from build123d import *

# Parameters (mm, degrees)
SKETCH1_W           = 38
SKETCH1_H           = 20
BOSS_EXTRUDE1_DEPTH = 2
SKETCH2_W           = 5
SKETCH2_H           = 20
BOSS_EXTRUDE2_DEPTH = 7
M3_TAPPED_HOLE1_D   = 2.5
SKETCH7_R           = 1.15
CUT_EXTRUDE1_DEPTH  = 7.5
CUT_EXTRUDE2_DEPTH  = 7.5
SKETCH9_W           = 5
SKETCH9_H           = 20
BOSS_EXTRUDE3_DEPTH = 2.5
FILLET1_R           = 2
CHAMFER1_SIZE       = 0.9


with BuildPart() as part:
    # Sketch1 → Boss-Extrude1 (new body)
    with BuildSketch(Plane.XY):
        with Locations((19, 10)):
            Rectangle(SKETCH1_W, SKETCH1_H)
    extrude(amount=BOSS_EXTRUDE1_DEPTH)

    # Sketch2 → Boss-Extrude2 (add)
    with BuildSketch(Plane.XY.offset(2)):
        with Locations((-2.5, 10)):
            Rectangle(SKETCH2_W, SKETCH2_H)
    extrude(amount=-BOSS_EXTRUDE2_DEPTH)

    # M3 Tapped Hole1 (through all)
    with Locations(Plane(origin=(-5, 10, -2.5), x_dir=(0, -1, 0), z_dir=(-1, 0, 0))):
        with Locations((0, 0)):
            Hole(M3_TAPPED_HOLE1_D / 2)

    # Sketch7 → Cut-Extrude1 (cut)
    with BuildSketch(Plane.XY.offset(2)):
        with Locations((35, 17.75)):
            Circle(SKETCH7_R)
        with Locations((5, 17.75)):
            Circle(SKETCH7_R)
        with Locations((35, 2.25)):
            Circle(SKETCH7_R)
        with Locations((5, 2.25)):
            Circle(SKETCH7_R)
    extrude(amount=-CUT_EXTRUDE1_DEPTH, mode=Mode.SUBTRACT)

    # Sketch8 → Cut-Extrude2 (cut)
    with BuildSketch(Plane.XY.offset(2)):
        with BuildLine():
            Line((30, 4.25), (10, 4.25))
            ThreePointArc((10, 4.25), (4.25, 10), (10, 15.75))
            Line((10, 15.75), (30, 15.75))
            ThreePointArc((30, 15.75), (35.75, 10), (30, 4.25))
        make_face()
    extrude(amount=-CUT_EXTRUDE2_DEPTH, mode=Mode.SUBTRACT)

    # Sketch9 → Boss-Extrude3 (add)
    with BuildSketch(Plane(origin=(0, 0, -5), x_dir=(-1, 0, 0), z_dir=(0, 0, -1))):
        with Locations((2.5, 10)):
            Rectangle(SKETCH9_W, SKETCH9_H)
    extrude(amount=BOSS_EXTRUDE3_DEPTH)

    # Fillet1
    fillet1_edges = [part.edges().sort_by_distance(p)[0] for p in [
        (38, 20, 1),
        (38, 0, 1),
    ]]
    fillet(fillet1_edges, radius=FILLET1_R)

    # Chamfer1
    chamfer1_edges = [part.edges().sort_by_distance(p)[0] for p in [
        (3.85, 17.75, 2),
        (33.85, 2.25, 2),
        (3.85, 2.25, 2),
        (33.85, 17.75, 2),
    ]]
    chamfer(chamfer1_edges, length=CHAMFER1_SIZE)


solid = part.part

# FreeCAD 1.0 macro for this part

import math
import FreeCAD as App
import Part
import Sketcher
from FreeCAD import Vector


def edges_at(feature, points):
    """Names of the edges that pass closest to the given points."""
    edges = feature.Shape.Edges
    near = lambda p: min(range(len(edges)), key=lambda i: edges[i].distToShape(Part.Vertex(*p))[0])
    return sorted({f"Edge{near(p) + 1}" for p in points})


def add_polygon(sketch, points):
    """Adds a closed chain of lines whose ends are joined by coincident constraints."""
    first, n = sketch.GeometryCount, len(points)
    for a, b in zip(points, points[1:] + points[:1]):
        sketch.addGeometry(Part.LineSegment(App.Vector(*a, 0), App.Vector(*b, 0)), False)
    for i in range(n):
        sketch.addConstraint(Sketcher.Constraint("Coincident", first + i, 2, first + (i + 1) % n, 1))

doc = App.newDocument("Part")
body = doc.addObject("PartDesign::Body", "Body")

sketch1 = doc.addObject("Sketcher::SketchObject", "Sketch")
body.addObject(sketch1)
sketch1.AttachmentSupport = (doc.XY_Plane, [""])
sketch1.MapMode = "FlatFace"
add_polygon(sketch1, [(0, 20), (0, 0), (38, 0), (38, 20)])
sketch1.addConstraint(Sketcher.Constraint("Vertical", 0))
sketch1.addConstraint(Sketcher.Constraint("Horizontal", 1))
sketch1.addConstraint(Sketcher.Constraint("Vertical", 2))
sketch1.addConstraint(Sketcher.Constraint("Horizontal", 3))
sketch1.addConstraint(Sketcher.Constraint("Coincident", 0, 2, -1, 1))
sketch1.addConstraint(Sketcher.Constraint("DistanceX", 1, 1, 1, 2, 38.0))
sketch1.addConstraint(Sketcher.Constraint("DistanceY", 0, 2, 0, 1, 20.0))
pad1 = doc.addObject("PartDesign::Pad", "Pad")
body.addObject(pad1)
pad1.Profile = sketch1
pad1.Length = 2

sketch2 = doc.addObject("Sketcher::SketchObject", "Sketch001")
body.addObject(sketch2)
sketch2.AttachmentSupport = (doc.XY_Plane, [""])
sketch2.MapMode = "FlatFace"
sketch2.AttachmentOffset = App.Placement(Vector(0, 0, 2), App.Rotation())
add_polygon(sketch2, [(-5, 20), (-5, 0), (0, 0), (0, 20)])
sketch2.addConstraint(Sketcher.Constraint("Vertical", 0))
sketch2.addConstraint(Sketcher.Constraint("Horizontal", 1))
sketch2.addConstraint(Sketcher.Constraint("Vertical", 2))
sketch2.addConstraint(Sketcher.Constraint("Horizontal", 3))
sketch2.addConstraint(Sketcher.Constraint("Coincident", 1, 2, -1, 1))
sketch2.addConstraint(Sketcher.Constraint("DistanceX", 1, 1, 1, 2, 5.0))
sketch2.addConstraint(Sketcher.Constraint("DistanceY", 0, 2, 0, 1, 20.0))
pad2 = doc.addObject("PartDesign::Pad", "Pad001")
body.addObject(pad2)
pad2.Profile = sketch2
pad2.Length = 7
pad2.Reversed = True

sketch3 = doc.addObject("Sketcher::SketchObject", "Sketch002")
body.addObject(sketch3)
sketch3.AttachmentSupport = (doc.YZ_Plane, [""])
sketch3.MapMode = "FlatFace"
sketch3.AttachmentOffset = App.Placement(Vector(0, 0, -5), App.Rotation())
sketch3.addGeometry(Part.Circle(Vector(10, -2.5, 0), Vector(0, 0, 1), 1.2), False)
sketch3.addConstraint(Sketcher.Constraint("Diameter", 0, 2.5))
sketch3.addConstraint(Sketcher.Constraint("DistanceX", -1, 1, 0, 3, 10.0))
sketch3.addConstraint(Sketcher.Constraint("DistanceY", 0, 3, -1, 1, 2.5))
doc.recompute()
hole = doc.addObject("PartDesign::Hole", "Hole")
body.addObject(hole)
hole.Profile = sketch3
hole.ThreadType = "None"
hole.Diameter = 2.5
hole.DepthType = "ThroughAll"
hole.Reversed = True

sketch4 = doc.addObject("Sketcher::SketchObject", "Sketch003")
body.addObject(sketch4)
sketch4.AttachmentSupport = (doc.XY_Plane, [""])
sketch4.MapMode = "FlatFace"
sketch4.AttachmentOffset = App.Placement(Vector(0, 0, 2), App.Rotation())
sketch4.addGeometry(Part.Circle(Vector(35, 17.8, 0), Vector(0, 0, 1), 1.1), False)
sketch4.addGeometry(Part.Circle(Vector(5, 17.8, 0), Vector(0, 0, 1), 1.1), False)
sketch4.addGeometry(Part.Circle(Vector(35, 2.2, 0), Vector(0, 0, 1), 1.1), False)
sketch4.addGeometry(Part.Circle(Vector(5, 2.2, 0), Vector(0, 0, 1), 1.1), False)
sketch4.addConstraint(Sketcher.Constraint("Equal", 0, 1))
sketch4.addConstraint(Sketcher.Constraint("Equal", 1, 2))
sketch4.addConstraint(Sketcher.Constraint("Equal", 2, 3))
sketch4.addConstraint(Sketcher.Constraint("Horizontal", 0, 3, 1, 3))
sketch4.addConstraint(Sketcher.Constraint("Horizontal", 2, 3, 3, 3))
sketch4.addConstraint(Sketcher.Constraint("Vertical", 0, 3, 2, 3))
sketch4.addConstraint(Sketcher.Constraint("Vertical", 1, 3, 3, 3))
sketch4.addConstraint(Sketcher.Constraint("Diameter", 0, 2.3))
sketch4.addConstraint(Sketcher.Constraint("DistanceX", -1, 1, 0, 3, 35.0))
sketch4.addConstraint(Sketcher.Constraint("DistanceX", -1, 1, 1, 3, 5.0))
sketch4.addConstraint(Sketcher.Constraint("DistanceY", 2, 3, 0, 3, 15.5))
sketch4.addConstraint(Sketcher.Constraint("DistanceY", -1, 1, 0, 3, 17.75))
pocket1 = doc.addObject("PartDesign::Pocket", "Pocket")
body.addObject(pocket1)
pocket1.Profile = sketch4
pocket1.Length = 7.5

sketch5 = doc.addObject("Sketcher::SketchObject", "Sketch004")
body.addObject(sketch5)
sketch5.AttachmentSupport = (doc.XY_Plane, [""])
sketch5.MapMode = "FlatFace"
sketch5.AttachmentOffset = App.Placement(Vector(0, 0, 2), App.Rotation())
sketch5.addGeometry(Part.LineSegment(Vector(10, 4, 0), Vector(30, 4, 0)), False)
sketch5.addGeometry(Part.ArcOfCircle(Part.Circle(Vector(30, 10, 0), Vector(0, 0, 1), 6), math.radians(-90), math.radians(90)), False)
sketch5.addGeometry(Part.LineSegment(Vector(30, 16, 0), Vector(10, 16, 0)), False)
sketch5.addGeometry(Part.ArcOfCircle(Part.Circle(Vector(10, 10, 0), Vector(0, 0, 1), 6), math.radians(90), math.radians(270)), False)
sketch5.addConstraint(Sketcher.Constraint("Tangent", 0, 2, 1, 1))
sketch5.addConstraint(Sketcher.Constraint("Tangent", 1, 2, 2, 1))
sketch5.addConstraint(Sketcher.Constraint("Tangent", 2, 2, 3, 1))
sketch5.addConstraint(Sketcher.Constraint("Tangent", 3, 2, 0, 1))
sketch5.addConstraint(Sketcher.Constraint("Horizontal", 0))
sketch5.addConstraint(Sketcher.Constraint("Horizontal", 2))
sketch5.addConstraint(Sketcher.Constraint("DistanceX", 0, 1, 0, 2, 20.0))
sketch5.addConstraint(Sketcher.Constraint("Radius", 1, 5.75))
sketch5.addConstraint(Sketcher.Constraint("DistanceX", -1, 1, 1, 3, 30.0))
sketch5.addConstraint(Sketcher.Constraint("DistanceY", -1, 1, 1, 3, 10.0))
pocket2 = doc.addObject("PartDesign::Pocket", "Pocket001")
body.addObject(pocket2)
pocket2.Profile = sketch5
pocket2.Length = 7.5

sketch6 = doc.addObject("Sketcher::SketchObject", "Sketch005")
body.addObject(sketch6)
sketch6.AttachmentSupport = (doc.XY_Plane, [""])
sketch6.MapMode = "FlatFace"
sketch6.AttachmentOffset = App.Placement(Vector(0, 0, -5), App.Rotation())
add_polygon(sketch6, [(0, 20), (0, 0), (-5, 0), (-5, 20)])
sketch6.addConstraint(Sketcher.Constraint("Vertical", 0))
sketch6.addConstraint(Sketcher.Constraint("Horizontal", 1))
sketch6.addConstraint(Sketcher.Constraint("Vertical", 2))
sketch6.addConstraint(Sketcher.Constraint("Horizontal", 3))
sketch6.addConstraint(Sketcher.Constraint("Coincident", 0, 2, -1, 1))
sketch6.addConstraint(Sketcher.Constraint("DistanceX", 1, 2, 1, 1, 5.0))
sketch6.addConstraint(Sketcher.Constraint("DistanceY", 0, 2, 0, 1, 20.0))
pad3 = doc.addObject("PartDesign::Pad", "Pad002")
body.addObject(pad3)
pad3.Profile = sketch6
pad3.Length = 2.5
pad3.Reversed = True
doc.recompute()

fillet = doc.addObject("PartDesign::Fillet", "Fillet")
body.addObject(fillet)
fillet.Base = (pad3, edges_at(pad3, [(38, 20, 1), (38, 0, 1)]))
fillet.Radius = 2
doc.recompute()

chamfer = doc.addObject("PartDesign::Chamfer", "Chamfer")
body.addObject(chamfer)
chamfer.Base = (fillet, edges_at(fillet, [
    (3.85, 17.75, 2),
    (33.85, 2.25, 2),
    (3.85, 2.25, 2),
    (33.85, 17.75, 2),
]))
chamfer.Size = 0.9

doc.recompute()
